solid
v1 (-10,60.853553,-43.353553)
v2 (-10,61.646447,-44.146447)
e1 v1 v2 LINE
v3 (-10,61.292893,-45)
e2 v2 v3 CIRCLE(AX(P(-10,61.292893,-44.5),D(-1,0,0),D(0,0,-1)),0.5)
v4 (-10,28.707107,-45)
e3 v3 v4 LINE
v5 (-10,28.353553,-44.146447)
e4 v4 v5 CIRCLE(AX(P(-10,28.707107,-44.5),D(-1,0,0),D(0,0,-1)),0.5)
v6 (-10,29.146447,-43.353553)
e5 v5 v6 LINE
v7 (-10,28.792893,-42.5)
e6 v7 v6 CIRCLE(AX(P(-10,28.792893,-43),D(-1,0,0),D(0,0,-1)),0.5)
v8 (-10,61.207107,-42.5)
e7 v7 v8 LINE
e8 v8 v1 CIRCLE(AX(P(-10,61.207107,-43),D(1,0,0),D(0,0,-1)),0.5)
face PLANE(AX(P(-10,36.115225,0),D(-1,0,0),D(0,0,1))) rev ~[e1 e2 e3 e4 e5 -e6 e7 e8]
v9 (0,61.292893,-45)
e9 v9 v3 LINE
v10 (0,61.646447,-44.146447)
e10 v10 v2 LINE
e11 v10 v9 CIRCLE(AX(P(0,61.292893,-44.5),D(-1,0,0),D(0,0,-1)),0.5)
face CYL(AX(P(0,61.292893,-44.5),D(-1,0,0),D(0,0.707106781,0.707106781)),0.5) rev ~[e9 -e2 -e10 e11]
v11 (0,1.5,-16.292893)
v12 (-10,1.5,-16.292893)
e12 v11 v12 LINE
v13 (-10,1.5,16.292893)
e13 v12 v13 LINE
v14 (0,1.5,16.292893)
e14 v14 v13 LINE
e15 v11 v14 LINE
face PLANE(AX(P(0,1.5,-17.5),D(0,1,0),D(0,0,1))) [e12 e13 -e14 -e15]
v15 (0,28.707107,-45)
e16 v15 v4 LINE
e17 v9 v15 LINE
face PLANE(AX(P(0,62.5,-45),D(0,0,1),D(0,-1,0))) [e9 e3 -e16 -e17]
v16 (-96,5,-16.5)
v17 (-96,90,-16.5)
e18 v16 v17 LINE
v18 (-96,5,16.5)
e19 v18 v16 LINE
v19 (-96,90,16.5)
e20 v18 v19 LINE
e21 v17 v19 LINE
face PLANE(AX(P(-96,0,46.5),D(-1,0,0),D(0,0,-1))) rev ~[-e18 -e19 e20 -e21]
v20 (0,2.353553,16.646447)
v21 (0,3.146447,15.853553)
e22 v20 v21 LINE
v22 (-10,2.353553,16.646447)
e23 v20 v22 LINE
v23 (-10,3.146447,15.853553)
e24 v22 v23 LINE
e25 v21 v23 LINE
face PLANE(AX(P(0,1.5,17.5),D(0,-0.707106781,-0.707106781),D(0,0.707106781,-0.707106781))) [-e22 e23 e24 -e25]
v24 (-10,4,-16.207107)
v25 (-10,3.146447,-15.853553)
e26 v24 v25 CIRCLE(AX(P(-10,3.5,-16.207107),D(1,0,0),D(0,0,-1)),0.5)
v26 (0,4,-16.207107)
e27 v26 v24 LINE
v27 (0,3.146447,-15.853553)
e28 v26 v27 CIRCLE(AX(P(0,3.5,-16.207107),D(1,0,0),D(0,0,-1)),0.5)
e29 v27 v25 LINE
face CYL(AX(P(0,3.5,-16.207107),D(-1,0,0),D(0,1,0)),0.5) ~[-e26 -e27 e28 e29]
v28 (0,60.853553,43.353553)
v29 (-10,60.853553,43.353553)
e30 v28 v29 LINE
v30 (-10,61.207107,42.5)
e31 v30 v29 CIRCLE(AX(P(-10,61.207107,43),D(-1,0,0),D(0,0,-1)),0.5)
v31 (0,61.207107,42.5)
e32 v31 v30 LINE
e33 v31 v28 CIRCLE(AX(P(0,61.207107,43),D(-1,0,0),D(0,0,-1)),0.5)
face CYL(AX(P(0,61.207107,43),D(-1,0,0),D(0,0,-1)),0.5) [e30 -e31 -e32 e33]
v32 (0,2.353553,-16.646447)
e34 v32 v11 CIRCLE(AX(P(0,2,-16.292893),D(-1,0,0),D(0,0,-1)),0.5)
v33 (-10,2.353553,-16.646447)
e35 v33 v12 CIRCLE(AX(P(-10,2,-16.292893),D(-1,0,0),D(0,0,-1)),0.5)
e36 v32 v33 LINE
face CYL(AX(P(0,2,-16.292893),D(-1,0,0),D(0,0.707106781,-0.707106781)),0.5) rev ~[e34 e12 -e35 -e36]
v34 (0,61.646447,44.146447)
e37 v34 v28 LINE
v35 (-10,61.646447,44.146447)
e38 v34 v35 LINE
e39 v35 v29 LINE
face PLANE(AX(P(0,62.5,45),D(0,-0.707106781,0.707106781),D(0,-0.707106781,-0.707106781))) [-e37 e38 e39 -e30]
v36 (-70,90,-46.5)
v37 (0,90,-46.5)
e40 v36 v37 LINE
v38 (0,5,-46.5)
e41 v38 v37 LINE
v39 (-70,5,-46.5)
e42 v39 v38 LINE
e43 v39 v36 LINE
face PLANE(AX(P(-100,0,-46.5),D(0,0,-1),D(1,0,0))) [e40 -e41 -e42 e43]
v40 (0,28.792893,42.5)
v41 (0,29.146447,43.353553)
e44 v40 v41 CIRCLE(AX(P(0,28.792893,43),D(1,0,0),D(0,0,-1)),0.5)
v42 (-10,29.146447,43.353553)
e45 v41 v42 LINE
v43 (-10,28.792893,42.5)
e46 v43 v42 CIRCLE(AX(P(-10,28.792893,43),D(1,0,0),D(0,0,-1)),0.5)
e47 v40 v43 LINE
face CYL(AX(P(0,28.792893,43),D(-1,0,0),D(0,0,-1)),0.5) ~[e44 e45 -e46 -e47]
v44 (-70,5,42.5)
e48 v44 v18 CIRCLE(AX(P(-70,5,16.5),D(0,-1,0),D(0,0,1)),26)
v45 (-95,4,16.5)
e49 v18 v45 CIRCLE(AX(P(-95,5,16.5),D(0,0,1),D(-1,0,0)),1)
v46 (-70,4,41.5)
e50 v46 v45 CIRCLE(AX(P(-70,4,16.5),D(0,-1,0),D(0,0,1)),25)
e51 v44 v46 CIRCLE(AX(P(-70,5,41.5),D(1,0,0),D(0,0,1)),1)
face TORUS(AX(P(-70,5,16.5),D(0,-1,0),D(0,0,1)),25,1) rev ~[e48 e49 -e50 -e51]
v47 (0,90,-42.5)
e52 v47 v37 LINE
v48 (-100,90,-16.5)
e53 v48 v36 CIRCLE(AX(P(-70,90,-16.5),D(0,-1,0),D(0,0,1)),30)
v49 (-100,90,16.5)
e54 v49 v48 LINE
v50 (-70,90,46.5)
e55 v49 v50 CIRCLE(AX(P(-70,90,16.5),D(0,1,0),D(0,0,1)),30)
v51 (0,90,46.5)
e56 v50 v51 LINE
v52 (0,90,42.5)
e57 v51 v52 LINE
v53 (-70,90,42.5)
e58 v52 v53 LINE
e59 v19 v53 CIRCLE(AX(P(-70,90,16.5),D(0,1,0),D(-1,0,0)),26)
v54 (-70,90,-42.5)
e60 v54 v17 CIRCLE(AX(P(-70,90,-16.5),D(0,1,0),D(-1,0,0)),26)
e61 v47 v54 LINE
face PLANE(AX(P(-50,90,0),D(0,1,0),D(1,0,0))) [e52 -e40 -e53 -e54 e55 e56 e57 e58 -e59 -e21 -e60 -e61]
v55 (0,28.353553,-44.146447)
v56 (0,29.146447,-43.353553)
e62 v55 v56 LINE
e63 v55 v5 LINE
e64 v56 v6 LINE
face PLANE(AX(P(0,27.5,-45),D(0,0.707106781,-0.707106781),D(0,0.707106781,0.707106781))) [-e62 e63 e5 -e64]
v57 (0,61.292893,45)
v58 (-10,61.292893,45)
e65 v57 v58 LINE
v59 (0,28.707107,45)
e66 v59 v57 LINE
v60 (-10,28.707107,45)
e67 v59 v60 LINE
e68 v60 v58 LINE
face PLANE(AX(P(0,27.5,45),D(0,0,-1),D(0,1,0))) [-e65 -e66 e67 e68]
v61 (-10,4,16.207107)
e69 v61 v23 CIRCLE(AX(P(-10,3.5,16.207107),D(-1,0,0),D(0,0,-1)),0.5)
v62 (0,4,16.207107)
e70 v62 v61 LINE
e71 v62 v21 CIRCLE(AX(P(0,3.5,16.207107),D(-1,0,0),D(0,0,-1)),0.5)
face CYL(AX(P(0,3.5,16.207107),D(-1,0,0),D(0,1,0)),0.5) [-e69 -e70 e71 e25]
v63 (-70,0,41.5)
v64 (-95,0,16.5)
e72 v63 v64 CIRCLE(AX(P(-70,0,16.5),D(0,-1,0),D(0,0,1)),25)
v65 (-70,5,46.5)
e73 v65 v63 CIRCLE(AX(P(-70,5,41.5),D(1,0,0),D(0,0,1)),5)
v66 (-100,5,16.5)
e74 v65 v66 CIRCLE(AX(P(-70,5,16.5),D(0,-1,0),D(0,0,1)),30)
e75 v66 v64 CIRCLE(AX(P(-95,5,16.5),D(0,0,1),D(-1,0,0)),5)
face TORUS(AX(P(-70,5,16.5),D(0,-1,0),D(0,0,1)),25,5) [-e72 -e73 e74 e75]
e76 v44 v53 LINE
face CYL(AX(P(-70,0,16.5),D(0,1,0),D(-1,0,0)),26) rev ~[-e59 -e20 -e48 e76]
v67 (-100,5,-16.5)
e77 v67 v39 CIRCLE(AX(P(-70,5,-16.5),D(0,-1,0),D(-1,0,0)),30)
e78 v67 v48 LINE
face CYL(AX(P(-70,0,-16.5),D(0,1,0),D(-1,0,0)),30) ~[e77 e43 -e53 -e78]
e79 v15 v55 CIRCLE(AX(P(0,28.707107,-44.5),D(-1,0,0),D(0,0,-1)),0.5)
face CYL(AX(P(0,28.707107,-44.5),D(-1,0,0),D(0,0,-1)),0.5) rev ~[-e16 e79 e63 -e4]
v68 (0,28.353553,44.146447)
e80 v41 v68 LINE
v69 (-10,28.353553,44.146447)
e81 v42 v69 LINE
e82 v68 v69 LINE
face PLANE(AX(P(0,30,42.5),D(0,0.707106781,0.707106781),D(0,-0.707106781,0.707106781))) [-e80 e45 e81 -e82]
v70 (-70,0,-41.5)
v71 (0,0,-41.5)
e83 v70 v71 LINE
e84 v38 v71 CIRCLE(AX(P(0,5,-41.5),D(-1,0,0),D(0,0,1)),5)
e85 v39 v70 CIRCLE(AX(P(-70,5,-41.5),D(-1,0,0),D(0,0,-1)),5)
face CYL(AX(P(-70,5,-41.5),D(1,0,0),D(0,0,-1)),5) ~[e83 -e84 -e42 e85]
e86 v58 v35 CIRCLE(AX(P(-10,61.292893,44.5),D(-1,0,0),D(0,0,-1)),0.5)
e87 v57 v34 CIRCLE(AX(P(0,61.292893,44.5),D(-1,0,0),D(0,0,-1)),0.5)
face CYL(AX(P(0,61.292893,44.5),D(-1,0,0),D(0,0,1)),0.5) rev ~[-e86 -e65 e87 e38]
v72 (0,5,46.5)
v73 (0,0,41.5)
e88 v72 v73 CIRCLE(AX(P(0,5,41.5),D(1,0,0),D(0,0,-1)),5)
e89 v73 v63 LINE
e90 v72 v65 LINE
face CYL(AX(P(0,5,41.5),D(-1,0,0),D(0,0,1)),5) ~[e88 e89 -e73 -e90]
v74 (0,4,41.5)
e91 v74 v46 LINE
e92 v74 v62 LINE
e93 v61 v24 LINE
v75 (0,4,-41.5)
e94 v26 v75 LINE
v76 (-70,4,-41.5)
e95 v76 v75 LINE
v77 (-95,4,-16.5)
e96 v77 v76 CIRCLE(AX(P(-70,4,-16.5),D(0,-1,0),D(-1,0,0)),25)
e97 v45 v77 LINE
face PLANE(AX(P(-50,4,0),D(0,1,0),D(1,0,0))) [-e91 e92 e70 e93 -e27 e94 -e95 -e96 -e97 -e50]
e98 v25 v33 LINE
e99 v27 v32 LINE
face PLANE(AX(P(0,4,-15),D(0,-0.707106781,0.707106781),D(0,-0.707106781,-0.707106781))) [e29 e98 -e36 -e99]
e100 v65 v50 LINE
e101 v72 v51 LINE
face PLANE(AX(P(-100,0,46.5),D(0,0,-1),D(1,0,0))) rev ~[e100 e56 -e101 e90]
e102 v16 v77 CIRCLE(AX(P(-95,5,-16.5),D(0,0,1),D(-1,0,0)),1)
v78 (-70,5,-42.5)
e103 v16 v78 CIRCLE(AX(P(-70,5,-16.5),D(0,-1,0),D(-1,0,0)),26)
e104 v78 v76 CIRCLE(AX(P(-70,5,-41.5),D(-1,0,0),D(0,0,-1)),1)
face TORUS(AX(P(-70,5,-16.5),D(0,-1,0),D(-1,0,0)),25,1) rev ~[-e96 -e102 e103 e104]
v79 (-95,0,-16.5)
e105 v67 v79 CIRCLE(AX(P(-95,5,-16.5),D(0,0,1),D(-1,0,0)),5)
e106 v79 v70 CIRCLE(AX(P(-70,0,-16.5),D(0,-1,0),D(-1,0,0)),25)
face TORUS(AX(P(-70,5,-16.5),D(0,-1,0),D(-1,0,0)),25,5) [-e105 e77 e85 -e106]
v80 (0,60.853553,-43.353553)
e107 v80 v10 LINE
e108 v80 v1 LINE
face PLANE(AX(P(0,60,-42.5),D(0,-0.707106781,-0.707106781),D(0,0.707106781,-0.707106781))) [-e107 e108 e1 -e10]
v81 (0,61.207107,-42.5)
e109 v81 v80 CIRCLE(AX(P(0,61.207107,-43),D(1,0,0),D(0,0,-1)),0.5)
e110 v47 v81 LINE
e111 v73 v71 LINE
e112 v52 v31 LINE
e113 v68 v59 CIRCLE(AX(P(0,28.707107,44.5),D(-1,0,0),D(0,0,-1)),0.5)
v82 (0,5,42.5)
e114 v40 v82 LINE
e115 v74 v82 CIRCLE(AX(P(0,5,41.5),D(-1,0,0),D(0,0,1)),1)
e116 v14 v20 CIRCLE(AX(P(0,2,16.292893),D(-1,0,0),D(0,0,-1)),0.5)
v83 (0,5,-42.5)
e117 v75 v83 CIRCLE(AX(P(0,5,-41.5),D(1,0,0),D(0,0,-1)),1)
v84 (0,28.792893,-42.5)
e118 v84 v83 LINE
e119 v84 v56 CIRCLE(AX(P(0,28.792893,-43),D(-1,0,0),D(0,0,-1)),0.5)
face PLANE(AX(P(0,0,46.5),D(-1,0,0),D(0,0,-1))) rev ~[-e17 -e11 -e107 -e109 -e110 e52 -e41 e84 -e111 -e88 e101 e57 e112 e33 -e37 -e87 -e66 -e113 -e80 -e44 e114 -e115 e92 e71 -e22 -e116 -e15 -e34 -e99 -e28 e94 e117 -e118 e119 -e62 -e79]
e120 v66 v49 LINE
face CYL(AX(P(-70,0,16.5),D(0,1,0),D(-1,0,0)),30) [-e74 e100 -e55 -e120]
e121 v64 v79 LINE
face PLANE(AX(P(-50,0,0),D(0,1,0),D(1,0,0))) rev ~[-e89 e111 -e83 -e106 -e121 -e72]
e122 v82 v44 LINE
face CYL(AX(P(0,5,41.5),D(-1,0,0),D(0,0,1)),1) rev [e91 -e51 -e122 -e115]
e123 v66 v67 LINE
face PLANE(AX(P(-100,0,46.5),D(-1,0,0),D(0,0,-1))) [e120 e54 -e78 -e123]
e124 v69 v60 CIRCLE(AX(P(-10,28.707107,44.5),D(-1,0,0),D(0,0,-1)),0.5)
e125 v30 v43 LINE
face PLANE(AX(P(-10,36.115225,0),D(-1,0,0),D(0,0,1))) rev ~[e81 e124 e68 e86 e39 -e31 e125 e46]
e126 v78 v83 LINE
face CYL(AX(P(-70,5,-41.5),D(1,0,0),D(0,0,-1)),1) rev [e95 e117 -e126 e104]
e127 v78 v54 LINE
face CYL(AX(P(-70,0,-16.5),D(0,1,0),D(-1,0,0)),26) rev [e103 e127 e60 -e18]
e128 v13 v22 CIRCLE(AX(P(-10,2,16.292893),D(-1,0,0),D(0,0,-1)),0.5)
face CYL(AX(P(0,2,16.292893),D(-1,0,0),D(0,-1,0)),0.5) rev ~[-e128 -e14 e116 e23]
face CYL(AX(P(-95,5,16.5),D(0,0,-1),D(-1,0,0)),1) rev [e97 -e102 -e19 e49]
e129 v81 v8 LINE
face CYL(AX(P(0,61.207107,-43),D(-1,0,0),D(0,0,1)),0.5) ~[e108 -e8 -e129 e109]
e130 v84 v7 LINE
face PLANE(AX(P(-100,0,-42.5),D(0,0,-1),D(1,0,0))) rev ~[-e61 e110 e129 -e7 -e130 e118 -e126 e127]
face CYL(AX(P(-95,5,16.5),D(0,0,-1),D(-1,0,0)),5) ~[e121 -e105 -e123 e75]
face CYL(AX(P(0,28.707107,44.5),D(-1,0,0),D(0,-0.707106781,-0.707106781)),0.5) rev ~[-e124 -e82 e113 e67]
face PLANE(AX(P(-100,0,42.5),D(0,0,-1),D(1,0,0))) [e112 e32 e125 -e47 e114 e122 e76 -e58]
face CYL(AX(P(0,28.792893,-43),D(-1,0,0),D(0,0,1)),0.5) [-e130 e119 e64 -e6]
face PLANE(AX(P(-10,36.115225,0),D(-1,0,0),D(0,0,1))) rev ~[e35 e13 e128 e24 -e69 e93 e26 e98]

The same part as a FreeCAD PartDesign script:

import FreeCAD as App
import Part
import Sketcher


def edges_at(feature, points):
    """Names of the edges that pass closest to the given points."""
    edges = feature.Shape.Edges
    near = lambda p: min(range(len(edges)), key=lambda i: edges[i].distToShape(Part.Vertex(*p))[0])
    return sorted({f"Edge{near(p) + 1}" for p in points})


def faces_at(feature, points):
    """Names of the faces that lie closest to the given points."""
    faces = feature.Shape.Faces
    near = lambda p: min(range(len(faces)), key=lambda i: faces[i].distToShape(Part.Vertex(*p))[0])
    return sorted({f"Face{near(p) + 1}" for p in points})


def add_polygon(sketch, points):
    """Adds a closed chain of lines whose ends are joined by coincident constraints."""
    first, n = sketch.GeometryCount, len(points)
    for a, b in zip(points, points[1:] + points[:1]):
        sketch.addGeometry(Part.LineSegment(App.Vector(*a, 0), App.Vector(*b, 0)), False)
    for i in range(n):
        sketch.addConstraint(Sketcher.Constraint("Coincident", first + i, 2, first + (i + 1) % n, 1))

doc = App.newDocument("Part")
body = doc.addObject("PartDesign::Body", "Body")

sketch1 = body.newObject("Sketcher::SketchObject", "Sketch")
sketch1.AttachmentSupport = (doc.getObject("XZ_Plane"), [""])
sketch1.MapMode = "FlatFace"
add_polygon(sketch1, [(-100, -46.5), (-100, 46.5), (0, 46.5), (0, -46.5)])
sketch1.addConstraint([
    Sketcher.Constraint("Vertical", 0),
    Sketcher.Constraint("Horizontal", 1),
    Sketcher.Constraint("Vertical", 2),
    Sketcher.Constraint("Horizontal", 3),
    Sketcher.Constraint("Symmetric", 1, 2, 2, 2, -1, 1),
    Sketcher.Constraint("DistanceX", 1, 1, 1, 2, 100.0),
    Sketcher.Constraint("DistanceY", 0, 1, 0, 2, 93.0),
])
pad1 = body.newObject("PartDesign::Pad", "Pad")
pad1.Profile = sketch1
pad1.Length = 90
pad1.Reversed = True
doc.recompute()

fillet = body.newObject("PartDesign::Fillet", "Fillet")
fillet.Base = (pad1, edges_at(pad1, [(-100, 45, 46.5), (-100, 45, -46.5)]))
fillet.Radius = 30
doc.recompute()

fillet2 = body.newObject("PartDesign::Fillet", "Fillet001")
fillet2.Base = (fillet, edges_at(fillet, [
    (-100, 0, 0),
    (-35, 0, 46.5),
    (-91.213, 0, 37.713),
    (-91.213, 0, -37.713),
    (-35, 0, -46.5),
]))
fillet2.Radius = 5
doc.recompute()

thickness = body.newObject("PartDesign::Thickness", "Thickness")
thickness.Base = (fillet2, faces_at(fillet2, [(-50, 90, 0), (0, 45, 0)]))
thickness.Value = 4
thickness.Reversed = True
thickness.Join = "Intersection"

sketch2 = body.newObject("Sketcher::SketchObject", "Sketch001")
sketch2.AttachmentSupport = (doc.getObject("YZ_Plane"), [""])
sketch2.MapMode = "FlatFace"
add_polygon(sketch2, [(60, -42.5), (60, 42.5), (62.5, 45), (27.5, 45), (30, 42.5), (30, 15), (4, 15), (1.5, 17.5), (1.5, -17.5), (4, -15), (30, -15), (30, -42.5), (27.5, -45), (62.5, -45)])
sketch2.addConstraint([
    Sketcher.Constraint("Vertical", 0),
    Sketcher.Constraint("Horizontal", 2),
    Sketcher.Constraint("Vertical", 4),
    Sketcher.Constraint("Horizontal", 5),
    Sketcher.Constraint("Vertical", 7),
    Sketcher.Constraint("Horizontal", 9),
    Sketcher.Constraint("Vertical", 10),
    Sketcher.Constraint("Horizontal", 12),
    Sketcher.Constraint("Symmetric", 5, 2, 8, 2, -1),
    Sketcher.Constraint("Symmetric", 3, 2, 10, 2, -1),
    Sketcher.Constraint("Symmetric", 2, 2, 11, 2, -1),
    Sketcher.Constraint("Perpendicular", 1, 3),
    Sketcher.Constraint("Parallel", 3, 6),
    Sketcher.Constraint("Perpendicular", 6, 8),
    Sketcher.Constraint("Parallel", 8, 11),
    Sketcher.Constraint("Perpendicular", 11, 13),
    Sketcher.Constraint("Horizontal", 0, 2, 3, 2),
    Sketcher.Constraint("Horizontal", 10, 2, 13, 2),
    Sketcher.Constraint("Equal", 12, 7),
    Sketcher.Constraint("Equal", 3, 6),
    Sketcher.Constraint("DistanceX", 2, 2, 2, 1, 35.0),
    Sketcher.Constraint("DistanceX", 5, 2, 5, 1, 26.0),
    Sketcher.Constraint("DistanceY", 0, 1, 0, 2, 85.0),
    Sketcher.Constraint("DistanceY", 4, 2, 4, 1, 27.5),
    Sketcher.Constraint("DistanceX", -1, 1, 0, 2, 60.0),
])
pocket1 = body.newObject("PartDesign::Pocket", "Pocket")
pocket1.Profile = sketch2
pocket1.Length = 10
doc.recompute()

fillet3 = body.newObject("PartDesign::Fillet", "Fillet002")
fillet3.Base = (pocket1, edges_at(pocket1, [
    (-5, 60, -42.5),
    (-5, 62.5, -45),
    (-5, 27.5, -45),
    (-5, 30, -42.5),
    (-5, 4, -15),
    (-5, 1.5, -17.5),
    (-5, 1.5, 17.5),
    (-5, 4, 15),
    (-5, 30, 42.5),
    (-5, 27.5, 45),
    (-5, 62.5, 45),
    (-5, 60, 42.5),
]))
fillet3.Radius = 0.5

doc.recompute()
